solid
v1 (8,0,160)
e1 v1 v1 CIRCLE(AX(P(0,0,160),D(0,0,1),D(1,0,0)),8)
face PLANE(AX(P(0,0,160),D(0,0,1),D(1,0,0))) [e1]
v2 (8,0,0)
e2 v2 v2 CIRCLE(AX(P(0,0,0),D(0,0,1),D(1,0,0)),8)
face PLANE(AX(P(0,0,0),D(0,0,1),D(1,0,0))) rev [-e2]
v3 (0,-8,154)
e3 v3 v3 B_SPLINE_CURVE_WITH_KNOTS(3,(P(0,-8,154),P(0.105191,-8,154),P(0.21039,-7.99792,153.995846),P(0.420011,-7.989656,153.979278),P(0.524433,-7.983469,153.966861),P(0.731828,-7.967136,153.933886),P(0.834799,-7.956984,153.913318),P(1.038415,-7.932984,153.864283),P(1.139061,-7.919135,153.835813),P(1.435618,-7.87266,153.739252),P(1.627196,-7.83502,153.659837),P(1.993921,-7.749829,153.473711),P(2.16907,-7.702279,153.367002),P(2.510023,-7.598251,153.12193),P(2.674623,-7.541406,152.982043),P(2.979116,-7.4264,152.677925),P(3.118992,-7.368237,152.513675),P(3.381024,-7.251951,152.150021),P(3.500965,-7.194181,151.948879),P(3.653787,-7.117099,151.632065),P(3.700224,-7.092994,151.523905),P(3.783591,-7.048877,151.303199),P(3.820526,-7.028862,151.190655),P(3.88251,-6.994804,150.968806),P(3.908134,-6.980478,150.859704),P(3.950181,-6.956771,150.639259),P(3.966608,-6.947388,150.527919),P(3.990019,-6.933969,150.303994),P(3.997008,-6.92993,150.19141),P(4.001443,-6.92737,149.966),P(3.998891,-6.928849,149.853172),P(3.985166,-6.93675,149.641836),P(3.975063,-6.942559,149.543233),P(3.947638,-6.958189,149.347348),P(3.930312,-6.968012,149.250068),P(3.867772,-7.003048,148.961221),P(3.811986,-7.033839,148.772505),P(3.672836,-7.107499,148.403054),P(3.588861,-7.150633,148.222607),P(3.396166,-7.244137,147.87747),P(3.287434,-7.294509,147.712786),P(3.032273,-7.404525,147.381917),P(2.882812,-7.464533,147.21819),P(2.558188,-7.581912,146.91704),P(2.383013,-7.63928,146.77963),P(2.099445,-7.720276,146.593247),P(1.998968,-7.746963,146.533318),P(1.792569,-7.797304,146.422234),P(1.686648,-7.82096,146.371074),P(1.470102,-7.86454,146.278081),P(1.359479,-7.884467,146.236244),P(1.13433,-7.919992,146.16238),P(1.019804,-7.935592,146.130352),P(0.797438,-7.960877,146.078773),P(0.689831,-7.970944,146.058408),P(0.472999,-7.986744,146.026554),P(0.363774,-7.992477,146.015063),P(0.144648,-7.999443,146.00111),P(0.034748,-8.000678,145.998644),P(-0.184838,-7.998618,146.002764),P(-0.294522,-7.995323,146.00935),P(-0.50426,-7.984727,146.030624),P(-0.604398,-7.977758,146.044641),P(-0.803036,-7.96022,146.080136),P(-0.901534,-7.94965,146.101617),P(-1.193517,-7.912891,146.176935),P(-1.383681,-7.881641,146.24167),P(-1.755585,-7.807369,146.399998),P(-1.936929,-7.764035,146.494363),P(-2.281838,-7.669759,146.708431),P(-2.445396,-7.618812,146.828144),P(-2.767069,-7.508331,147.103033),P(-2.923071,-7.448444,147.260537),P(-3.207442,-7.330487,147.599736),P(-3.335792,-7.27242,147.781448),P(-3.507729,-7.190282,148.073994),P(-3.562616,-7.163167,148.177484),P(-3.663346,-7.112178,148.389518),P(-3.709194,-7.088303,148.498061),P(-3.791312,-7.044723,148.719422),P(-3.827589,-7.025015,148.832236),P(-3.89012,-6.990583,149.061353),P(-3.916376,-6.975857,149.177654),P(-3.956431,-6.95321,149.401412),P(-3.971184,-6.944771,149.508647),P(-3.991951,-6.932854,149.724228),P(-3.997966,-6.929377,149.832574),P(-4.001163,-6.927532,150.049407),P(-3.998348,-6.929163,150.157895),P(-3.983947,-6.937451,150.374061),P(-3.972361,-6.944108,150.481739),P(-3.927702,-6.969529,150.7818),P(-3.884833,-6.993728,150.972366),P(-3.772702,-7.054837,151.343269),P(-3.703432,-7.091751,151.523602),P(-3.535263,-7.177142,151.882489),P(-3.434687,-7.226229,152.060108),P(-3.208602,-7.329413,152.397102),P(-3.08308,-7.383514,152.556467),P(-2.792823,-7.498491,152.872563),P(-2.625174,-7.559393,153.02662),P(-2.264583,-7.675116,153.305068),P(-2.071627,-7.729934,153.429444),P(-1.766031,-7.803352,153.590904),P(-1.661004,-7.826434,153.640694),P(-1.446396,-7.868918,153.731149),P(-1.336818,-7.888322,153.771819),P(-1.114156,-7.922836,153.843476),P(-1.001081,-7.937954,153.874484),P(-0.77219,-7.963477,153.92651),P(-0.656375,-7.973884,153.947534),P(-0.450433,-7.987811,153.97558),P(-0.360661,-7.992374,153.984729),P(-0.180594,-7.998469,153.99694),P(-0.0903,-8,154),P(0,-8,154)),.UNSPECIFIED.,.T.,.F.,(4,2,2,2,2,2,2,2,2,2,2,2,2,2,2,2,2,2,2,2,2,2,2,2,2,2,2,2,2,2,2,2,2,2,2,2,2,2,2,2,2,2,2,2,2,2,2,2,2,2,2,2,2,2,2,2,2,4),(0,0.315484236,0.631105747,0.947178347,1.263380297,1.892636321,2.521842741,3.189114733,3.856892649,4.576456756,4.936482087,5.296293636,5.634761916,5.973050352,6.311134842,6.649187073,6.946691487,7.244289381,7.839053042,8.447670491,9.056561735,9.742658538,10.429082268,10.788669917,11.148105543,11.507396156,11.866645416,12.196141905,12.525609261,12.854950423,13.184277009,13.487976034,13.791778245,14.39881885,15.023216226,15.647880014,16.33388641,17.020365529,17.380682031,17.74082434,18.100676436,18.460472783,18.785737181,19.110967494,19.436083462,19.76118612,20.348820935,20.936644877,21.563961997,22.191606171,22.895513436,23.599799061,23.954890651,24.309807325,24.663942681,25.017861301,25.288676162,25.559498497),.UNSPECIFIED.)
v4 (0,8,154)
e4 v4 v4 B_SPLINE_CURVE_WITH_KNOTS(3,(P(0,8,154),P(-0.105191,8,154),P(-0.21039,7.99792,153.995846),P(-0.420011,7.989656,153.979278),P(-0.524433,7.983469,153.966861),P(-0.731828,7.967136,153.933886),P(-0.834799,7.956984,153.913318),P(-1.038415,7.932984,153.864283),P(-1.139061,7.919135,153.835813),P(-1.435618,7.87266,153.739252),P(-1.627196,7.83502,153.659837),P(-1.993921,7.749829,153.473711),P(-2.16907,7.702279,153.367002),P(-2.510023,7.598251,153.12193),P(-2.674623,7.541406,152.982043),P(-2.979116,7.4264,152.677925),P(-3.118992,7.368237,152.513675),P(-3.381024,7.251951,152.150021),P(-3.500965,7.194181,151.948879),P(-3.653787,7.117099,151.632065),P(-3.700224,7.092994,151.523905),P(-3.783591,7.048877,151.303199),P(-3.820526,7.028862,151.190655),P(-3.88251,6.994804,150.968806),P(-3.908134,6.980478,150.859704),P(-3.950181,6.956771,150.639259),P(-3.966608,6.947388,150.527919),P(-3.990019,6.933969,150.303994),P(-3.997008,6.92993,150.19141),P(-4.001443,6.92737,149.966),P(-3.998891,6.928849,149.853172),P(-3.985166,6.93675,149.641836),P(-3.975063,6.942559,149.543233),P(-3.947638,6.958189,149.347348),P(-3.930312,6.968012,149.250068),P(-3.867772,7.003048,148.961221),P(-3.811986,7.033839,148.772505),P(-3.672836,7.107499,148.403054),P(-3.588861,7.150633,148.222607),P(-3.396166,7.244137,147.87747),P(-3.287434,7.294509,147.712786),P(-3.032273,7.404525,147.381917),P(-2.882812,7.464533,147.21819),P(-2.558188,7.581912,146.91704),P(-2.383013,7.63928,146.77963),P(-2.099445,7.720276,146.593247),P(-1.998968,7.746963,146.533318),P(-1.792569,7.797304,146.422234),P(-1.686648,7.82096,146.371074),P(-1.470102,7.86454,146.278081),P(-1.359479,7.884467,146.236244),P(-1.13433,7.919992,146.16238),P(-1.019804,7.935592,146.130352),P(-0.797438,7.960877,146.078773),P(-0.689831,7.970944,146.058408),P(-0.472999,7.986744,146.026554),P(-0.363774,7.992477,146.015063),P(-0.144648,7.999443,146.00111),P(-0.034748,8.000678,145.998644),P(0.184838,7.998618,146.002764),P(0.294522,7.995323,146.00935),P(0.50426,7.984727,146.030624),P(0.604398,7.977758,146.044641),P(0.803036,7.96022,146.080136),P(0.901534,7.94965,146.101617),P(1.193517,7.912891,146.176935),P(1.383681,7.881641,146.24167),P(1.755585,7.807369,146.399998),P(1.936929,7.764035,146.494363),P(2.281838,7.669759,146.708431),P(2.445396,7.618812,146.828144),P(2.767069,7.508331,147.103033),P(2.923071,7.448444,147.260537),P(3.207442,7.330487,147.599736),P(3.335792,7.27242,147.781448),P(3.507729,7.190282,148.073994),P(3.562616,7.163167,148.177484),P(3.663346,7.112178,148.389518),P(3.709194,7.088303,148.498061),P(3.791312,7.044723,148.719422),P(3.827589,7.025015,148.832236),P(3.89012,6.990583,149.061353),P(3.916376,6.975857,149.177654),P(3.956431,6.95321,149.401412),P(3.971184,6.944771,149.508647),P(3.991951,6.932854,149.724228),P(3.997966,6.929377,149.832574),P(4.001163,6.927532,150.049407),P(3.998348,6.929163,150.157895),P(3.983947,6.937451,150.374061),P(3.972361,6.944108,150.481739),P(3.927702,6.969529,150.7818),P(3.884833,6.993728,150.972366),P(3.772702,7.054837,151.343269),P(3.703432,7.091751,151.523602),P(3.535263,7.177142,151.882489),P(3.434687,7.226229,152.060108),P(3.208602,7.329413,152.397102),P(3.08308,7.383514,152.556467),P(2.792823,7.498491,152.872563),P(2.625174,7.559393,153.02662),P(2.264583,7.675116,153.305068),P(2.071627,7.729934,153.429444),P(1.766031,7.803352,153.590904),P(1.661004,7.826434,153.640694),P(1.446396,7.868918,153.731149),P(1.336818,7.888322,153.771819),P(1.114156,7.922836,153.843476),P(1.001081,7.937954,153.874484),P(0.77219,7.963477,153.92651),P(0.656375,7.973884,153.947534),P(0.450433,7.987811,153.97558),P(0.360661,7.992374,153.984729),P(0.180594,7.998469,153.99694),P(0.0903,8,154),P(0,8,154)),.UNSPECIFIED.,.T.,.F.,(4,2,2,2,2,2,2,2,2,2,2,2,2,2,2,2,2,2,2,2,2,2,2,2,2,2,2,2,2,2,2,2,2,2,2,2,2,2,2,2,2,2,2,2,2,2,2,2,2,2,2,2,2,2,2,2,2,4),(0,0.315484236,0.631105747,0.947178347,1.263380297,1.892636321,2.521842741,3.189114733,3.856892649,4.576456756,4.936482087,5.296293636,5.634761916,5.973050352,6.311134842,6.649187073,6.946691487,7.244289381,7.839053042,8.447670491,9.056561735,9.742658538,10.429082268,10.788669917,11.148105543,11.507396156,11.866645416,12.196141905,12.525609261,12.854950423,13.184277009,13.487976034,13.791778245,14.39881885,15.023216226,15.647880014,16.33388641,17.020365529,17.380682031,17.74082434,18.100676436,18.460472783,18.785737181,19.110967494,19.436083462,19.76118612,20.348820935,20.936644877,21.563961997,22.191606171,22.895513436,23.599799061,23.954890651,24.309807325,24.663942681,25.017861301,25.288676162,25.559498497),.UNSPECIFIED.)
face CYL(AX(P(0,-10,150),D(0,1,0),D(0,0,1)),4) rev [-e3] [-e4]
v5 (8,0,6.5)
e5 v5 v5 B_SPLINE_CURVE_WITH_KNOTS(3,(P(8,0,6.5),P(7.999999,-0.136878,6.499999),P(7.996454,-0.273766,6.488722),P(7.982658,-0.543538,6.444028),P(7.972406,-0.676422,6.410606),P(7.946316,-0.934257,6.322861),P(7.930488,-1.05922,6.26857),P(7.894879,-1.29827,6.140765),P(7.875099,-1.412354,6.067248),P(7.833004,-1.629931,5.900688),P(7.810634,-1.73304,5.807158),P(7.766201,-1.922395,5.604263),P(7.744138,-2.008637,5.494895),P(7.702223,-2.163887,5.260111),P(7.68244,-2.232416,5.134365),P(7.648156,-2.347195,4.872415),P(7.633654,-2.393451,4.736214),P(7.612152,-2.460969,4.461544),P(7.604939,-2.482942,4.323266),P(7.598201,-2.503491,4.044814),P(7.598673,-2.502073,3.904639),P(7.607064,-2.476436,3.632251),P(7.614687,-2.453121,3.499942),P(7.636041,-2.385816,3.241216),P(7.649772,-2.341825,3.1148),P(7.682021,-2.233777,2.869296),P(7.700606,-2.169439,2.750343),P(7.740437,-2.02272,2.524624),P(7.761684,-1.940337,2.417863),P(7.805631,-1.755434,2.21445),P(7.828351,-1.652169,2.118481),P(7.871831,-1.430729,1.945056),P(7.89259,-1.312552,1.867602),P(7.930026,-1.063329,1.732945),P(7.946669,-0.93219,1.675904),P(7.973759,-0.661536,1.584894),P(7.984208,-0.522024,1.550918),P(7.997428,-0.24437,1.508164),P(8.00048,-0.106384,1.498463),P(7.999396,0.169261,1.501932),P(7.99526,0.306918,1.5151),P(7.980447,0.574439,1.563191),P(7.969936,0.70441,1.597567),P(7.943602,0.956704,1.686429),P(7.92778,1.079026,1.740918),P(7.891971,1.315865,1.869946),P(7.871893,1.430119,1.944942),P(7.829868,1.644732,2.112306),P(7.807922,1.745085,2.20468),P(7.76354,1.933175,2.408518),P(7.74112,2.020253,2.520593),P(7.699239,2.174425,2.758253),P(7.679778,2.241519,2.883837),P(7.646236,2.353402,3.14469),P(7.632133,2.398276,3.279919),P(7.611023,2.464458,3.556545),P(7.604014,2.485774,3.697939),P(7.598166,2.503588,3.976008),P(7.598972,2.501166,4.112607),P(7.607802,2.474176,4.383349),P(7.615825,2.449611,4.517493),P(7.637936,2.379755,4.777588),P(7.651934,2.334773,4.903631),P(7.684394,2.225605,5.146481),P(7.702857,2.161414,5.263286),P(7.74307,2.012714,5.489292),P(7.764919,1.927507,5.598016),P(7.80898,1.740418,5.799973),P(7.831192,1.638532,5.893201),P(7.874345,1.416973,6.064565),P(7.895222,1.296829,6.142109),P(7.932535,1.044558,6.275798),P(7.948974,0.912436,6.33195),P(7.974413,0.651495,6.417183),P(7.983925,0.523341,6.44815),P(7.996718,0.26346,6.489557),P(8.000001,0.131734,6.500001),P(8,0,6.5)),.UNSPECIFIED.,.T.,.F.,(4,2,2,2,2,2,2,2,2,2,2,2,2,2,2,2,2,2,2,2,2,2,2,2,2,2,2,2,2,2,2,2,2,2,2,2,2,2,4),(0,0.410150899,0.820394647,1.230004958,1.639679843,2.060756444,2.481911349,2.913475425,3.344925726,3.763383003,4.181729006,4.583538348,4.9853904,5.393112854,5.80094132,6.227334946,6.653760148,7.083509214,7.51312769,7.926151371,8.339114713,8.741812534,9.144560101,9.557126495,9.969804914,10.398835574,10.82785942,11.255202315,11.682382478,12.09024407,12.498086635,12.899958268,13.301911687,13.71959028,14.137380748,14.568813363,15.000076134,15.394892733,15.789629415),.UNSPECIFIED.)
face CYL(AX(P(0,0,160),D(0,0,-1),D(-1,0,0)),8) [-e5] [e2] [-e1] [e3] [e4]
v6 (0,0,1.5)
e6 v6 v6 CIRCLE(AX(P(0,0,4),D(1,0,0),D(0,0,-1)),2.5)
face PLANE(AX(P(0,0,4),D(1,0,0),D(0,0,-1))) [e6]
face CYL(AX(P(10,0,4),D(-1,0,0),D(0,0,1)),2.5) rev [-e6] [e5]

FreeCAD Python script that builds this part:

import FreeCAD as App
import Part
import Sketcher
from FreeCAD import Vector
Q = App.Units.Quantity

doc = App.newDocument("Part")
body = doc.addObject("PartDesign::Body", "Body")

sketch1 = doc.addObject("Sketcher::SketchObject", "Sketch")
body.addObject(sketch1)
sketch1.AttachmentSupport = (doc.XY_Plane, [""])
sketch1.MapMode = "FlatFace"
sketch1.addGeometry(Part.Circle(Vector(0, 0, 0), Vector(0, 0, 1), 8), False)
sketch1.addConstraint([
    Sketcher.Constraint("Coincident", 0, 3, -1, 1),
    Sketcher.Constraint("Diameter", 0, Q("16 mm")),
])
pad1 = doc.addObject("PartDesign::Pad", "Pad")
body.addObject(pad1)
pad1.Profile = sketch1
pad1.Length = 160

sketch2 = doc.addObject("Sketcher::SketchObject", "Sketch001")
body.addObject(sketch2)
sketch2.AttachmentSupport = (doc.XZ_Plane, [""])
sketch2.MapMode = "FlatFace"
sketch2.addGeometry(Part.Circle(Vector(0, 150, 0), Vector(0, 0, 1), 4), False)
sketch2.addConstraint([
    Sketcher.Constraint("PointOnObject", 0, 3, -2),
    Sketcher.Constraint("Diameter", 0, Q("8 mm")),
    Sketcher.Constraint("DistanceY", -1, 1, 0, 3, Q("150 mm")),
])
pocket1 = doc.addObject("PartDesign::Pocket", "Pocket")
body.addObject(pocket1)
pocket1.Profile = sketch2
pocket1.Length = 20
pocket1.Midplane = True

sketch3 = doc.addObject("Sketcher::SketchObject", "Sketch002")
body.addObject(sketch3)
sketch3.AttachmentSupport = (doc.YZ_Plane, [""])
sketch3.MapMode = "FlatFace"
sketch3.addGeometry(Part.Circle(Vector(0, 4, 0), Vector(0, 0, 1), 2.5), False)
sketch3.addConstraint([
    Sketcher.Constraint("PointOnObject", 0, 3, -2),
    Sketcher.Constraint("Diameter", 0, Q("5 mm")),
    Sketcher.Constraint("DistanceY", -1, 1, 0, 3, Q("4 mm")),
])
pocket2 = doc.addObject("PartDesign::Pocket", "Pocket001")
body.addObject(pocket2)
pocket2.Profile = sketch3
pocket2.Length = 10
pocket2.Reversed = True

doc.recompute()
